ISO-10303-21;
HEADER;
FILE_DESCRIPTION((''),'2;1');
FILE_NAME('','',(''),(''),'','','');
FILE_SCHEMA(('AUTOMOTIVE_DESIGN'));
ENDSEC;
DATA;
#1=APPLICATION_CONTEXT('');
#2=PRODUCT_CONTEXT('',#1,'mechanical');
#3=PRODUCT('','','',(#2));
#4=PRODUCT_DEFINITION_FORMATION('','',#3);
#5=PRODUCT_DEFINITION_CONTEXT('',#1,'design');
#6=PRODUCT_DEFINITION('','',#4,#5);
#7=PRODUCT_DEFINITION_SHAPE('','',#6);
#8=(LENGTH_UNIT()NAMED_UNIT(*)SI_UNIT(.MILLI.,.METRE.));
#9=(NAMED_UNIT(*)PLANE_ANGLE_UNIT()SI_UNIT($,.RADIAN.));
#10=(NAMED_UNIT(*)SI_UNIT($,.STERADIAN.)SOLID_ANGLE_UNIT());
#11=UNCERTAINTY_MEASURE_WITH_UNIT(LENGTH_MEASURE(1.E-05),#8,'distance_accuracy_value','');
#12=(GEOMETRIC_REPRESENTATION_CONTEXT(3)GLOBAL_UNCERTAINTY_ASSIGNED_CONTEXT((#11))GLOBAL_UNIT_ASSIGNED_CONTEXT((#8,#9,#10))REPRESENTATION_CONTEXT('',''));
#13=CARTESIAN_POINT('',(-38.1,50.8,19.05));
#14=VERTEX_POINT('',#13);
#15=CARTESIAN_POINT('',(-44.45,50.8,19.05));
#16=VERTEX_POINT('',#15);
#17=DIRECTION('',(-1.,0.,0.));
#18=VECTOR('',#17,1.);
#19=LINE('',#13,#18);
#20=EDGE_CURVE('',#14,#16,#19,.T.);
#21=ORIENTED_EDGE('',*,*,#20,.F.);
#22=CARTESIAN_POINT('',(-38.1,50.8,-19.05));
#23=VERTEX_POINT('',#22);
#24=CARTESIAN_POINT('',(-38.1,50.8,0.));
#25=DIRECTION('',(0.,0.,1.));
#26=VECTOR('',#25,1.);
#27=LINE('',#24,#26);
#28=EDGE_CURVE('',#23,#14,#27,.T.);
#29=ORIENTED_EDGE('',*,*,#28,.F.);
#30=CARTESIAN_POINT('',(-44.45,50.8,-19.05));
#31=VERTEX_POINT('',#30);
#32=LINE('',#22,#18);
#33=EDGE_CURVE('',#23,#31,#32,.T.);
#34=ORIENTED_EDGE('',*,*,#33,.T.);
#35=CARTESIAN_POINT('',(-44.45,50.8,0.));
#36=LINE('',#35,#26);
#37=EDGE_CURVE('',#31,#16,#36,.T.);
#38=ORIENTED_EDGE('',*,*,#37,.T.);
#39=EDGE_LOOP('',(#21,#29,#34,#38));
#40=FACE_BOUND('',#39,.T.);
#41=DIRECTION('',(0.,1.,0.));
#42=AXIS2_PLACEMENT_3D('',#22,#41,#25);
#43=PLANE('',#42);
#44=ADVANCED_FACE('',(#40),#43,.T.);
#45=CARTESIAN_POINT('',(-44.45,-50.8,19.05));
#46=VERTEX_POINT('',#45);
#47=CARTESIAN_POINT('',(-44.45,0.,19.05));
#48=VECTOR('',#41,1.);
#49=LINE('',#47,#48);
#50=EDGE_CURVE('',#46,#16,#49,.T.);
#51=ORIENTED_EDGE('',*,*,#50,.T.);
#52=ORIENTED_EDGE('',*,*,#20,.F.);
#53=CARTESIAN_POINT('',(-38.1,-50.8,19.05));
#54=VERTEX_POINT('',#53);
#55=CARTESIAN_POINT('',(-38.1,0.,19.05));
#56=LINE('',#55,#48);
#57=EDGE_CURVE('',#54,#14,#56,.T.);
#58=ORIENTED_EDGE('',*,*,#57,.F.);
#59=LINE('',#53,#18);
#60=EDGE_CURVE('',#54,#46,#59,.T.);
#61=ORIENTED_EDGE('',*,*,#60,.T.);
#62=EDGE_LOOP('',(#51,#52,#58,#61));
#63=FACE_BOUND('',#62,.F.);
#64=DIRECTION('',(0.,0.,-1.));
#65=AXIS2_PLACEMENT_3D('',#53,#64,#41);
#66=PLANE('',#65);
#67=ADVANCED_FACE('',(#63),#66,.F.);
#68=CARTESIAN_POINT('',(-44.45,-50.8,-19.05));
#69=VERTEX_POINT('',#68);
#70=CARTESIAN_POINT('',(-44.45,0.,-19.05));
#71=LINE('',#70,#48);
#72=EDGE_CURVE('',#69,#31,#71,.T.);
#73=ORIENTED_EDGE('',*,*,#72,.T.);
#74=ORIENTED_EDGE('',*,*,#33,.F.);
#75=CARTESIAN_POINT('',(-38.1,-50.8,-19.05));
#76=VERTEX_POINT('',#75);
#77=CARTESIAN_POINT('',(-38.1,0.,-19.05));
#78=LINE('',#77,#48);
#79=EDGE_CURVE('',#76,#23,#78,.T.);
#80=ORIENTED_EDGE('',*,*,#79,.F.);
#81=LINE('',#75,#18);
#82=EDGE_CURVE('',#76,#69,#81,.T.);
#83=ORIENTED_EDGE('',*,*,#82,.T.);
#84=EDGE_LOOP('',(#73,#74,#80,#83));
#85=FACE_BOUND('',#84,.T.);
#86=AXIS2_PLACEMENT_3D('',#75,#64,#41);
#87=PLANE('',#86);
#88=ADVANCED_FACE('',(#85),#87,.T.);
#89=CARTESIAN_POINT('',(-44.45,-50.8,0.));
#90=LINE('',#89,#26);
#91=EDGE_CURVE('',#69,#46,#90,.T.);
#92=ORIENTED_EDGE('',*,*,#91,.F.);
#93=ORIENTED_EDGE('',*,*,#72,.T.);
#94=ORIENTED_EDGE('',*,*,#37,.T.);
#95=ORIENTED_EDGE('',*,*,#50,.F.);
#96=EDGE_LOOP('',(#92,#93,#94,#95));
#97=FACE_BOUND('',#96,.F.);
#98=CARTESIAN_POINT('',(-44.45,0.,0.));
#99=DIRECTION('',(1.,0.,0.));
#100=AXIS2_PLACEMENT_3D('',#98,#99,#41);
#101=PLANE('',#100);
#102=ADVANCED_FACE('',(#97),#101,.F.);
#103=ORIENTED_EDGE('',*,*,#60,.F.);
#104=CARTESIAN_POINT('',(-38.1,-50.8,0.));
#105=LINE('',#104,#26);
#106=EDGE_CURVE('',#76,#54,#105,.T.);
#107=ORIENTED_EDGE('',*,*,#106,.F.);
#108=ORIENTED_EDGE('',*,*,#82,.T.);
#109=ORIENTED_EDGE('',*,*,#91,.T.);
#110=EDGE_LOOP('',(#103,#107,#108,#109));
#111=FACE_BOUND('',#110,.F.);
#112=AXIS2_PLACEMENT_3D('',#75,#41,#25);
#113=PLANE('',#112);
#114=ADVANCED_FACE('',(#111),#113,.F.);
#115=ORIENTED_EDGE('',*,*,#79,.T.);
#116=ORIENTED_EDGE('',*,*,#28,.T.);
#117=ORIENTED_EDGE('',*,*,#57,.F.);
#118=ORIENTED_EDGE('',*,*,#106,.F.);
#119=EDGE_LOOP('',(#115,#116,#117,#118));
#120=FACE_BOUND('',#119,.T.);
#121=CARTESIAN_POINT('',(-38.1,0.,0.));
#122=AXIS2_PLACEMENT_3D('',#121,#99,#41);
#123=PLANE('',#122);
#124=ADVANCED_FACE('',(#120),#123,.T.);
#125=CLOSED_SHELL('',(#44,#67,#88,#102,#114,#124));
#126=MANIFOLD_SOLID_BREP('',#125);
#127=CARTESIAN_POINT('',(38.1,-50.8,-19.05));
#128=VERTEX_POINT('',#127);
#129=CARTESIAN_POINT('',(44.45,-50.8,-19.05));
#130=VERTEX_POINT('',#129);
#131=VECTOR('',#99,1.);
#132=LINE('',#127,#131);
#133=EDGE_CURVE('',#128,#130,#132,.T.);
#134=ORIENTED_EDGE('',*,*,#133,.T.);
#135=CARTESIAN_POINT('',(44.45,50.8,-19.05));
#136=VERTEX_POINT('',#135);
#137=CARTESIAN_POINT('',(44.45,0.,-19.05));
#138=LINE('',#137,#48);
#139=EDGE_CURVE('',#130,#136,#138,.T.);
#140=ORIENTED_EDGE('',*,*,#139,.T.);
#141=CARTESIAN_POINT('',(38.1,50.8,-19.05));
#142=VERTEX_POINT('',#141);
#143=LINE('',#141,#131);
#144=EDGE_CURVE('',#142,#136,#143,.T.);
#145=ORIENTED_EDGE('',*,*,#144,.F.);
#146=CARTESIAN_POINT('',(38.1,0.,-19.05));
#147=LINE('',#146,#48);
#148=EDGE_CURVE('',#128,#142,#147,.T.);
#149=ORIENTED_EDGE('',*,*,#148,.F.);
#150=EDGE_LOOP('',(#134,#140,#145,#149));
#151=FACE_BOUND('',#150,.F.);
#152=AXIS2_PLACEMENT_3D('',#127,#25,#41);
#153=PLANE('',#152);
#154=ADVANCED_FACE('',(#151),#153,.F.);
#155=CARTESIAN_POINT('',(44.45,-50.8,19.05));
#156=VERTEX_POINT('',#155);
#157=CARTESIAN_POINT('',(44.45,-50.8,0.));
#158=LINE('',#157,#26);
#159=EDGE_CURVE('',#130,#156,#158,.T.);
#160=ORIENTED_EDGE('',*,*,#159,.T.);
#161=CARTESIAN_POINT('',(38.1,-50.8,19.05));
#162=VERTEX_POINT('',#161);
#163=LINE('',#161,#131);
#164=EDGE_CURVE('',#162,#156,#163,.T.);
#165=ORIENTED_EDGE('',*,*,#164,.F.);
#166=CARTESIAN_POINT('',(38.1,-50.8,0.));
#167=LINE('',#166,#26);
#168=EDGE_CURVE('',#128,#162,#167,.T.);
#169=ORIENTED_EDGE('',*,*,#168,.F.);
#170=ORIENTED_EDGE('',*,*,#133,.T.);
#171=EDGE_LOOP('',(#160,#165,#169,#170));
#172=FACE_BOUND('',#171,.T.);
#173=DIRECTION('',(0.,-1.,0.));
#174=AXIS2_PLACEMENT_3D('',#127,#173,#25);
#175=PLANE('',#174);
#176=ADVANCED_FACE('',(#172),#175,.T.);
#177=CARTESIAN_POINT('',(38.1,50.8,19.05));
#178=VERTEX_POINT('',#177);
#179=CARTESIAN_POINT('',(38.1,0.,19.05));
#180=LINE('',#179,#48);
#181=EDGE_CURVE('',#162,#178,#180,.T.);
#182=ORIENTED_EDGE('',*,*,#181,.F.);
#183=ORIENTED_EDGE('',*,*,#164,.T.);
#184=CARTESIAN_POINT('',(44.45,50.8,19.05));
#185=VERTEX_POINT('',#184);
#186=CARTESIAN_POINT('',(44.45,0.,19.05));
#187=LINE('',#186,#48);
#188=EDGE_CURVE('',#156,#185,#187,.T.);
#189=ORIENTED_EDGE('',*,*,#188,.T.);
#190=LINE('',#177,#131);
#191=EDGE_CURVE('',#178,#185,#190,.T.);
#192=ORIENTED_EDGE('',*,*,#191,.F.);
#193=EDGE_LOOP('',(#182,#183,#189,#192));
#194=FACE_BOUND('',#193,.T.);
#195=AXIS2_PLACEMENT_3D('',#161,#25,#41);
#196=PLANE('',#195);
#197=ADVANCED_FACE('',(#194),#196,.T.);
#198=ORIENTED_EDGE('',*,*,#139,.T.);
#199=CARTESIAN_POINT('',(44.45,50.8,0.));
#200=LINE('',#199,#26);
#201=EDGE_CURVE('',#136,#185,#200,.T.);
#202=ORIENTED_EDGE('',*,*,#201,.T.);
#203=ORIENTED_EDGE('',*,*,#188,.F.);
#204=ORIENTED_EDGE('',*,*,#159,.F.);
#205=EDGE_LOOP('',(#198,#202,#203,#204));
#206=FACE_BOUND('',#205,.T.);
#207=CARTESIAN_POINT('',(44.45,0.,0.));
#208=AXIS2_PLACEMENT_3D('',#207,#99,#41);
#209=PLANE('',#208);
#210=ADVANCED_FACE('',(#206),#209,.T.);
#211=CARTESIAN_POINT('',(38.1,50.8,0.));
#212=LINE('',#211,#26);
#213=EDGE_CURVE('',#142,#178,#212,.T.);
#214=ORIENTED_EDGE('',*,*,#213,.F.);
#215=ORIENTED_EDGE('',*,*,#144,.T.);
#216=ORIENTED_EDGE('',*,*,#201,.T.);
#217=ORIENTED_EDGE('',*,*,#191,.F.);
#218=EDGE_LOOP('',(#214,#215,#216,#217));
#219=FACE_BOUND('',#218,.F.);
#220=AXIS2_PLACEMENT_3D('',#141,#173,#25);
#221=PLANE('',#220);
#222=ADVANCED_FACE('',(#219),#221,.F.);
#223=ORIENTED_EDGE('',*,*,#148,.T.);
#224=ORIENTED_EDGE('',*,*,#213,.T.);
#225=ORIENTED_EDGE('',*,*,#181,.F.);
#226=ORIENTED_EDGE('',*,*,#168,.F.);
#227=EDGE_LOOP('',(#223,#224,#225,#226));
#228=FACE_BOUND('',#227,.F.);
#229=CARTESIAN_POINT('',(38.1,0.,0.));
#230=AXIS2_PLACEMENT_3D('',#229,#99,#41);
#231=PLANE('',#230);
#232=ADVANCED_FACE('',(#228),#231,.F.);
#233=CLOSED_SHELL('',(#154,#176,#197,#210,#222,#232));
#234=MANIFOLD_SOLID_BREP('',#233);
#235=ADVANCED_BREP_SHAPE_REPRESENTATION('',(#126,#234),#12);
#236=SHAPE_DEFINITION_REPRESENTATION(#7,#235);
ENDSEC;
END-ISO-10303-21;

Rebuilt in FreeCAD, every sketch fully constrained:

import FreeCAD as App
import Part
import Sketcher
Q = App.Units.Quantity

doc = App.newDocument("Part")
params = doc.addObject("Spreadsheet::Sheet", "Params")
for row, (alias, value) in enumerate([
    ("sketch1_width", "4 in"),
    ("sketch1_height", "1.5 in"),
    ("pad1_length", "0.25 in"),
    ("sketch2_width", "4 in"),
    ("sketch2_height", "1.5 in"),
    ("pad2_length", "0.25 in"),
], start=1):
    params.set(f"A{row}", alias)
    params.set(f"B{row}", "=" + value)
    params.setAlias(f"B{row}", alias)

body = doc.addObject("PartDesign::Body", "Body")

# Sketch on YZ plane
sketch1 = body.newObject("Sketcher::SketchObject", "Sketch")
sketch1.AttachmentSupport = (doc.getObject("YZ_Plane"), [""])
sketch1.MapMode = "FlatFace"
sketch1.AttachmentOffset = App.Placement(App.Vector(0, 0, 1.5 * 25.4), App.Rotation())
sketch1.addGeometry([
    Part.LineSegment(App.Vector(-51, 19, 0), App.Vector(-51, -19, 0)),
    Part.LineSegment(App.Vector(-51, -19, 0), App.Vector(51, -19, 0)),
    Part.LineSegment(App.Vector(51, -19, 0), App.Vector(51, 19, 0)),
    Part.LineSegment(App.Vector(51, 19, 0), App.Vector(-51, 19, 0)),
], False)
sketch1.addConstraint([
    Sketcher.Constraint("Coincident", 0, 2, 1, 1),
    Sketcher.Constraint("Coincident", 1, 2, 2, 1),
    Sketcher.Constraint("Coincident", 2, 2, 3, 1),
    Sketcher.Constraint("Coincident", 3, 2, 0, 1),
    Sketcher.Constraint("Vertical", 0),
    Sketcher.Constraint("Horizontal", 1),
    Sketcher.Constraint("Vertical", 2),
    Sketcher.Constraint("Horizontal", 3),
    Sketcher.Constraint("Symmetric", 0, 2, 2, 2, -1, 1),
    Sketcher.Constraint("DistanceX", 1, 1, 1, 2, Q("4 in")),
    Sketcher.Constraint("DistanceY", 0, 2, 0, 1, Q("1.5 in")),
])
sketch1.setExpression("Constraints[9]", "Params.sketch1_width")
sketch1.setExpression("Constraints[10]", "Params.sketch1_height")
pad1 = body.newObject("PartDesign::Pad", "Pad")
pad1.Profile = sketch1
pad1.setExpression("Length", "Params.pad1_length")
body2 = doc.addObject("PartDesign::Body", "Body001")

# Sketch on YZ plane
sketch2 = body2.newObject("Sketcher::SketchObject", "Sketch001")
sketch2.AttachmentSupport = (doc.getObject("YZ_Plane001"), [""])
sketch2.MapMode = "FlatFace"
sketch2.AttachmentOffset = App.Placement(App.Vector(0, 0, -1.5 * 25.4), App.Rotation())
sketch2.addGeometry([
    Part.LineSegment(App.Vector(-51, 19, 0), App.Vector(-51, -19, 0)),
    Part.LineSegment(App.Vector(-51, -19, 0), App.Vector(51, -19, 0)),
    Part.LineSegment(App.Vector(51, -19, 0), App.Vector(51, 19, 0)),
    Part.LineSegment(App.Vector(51, 19, 0), App.Vector(-51, 19, 0)),
], False)
sketch2.addConstraint([
    Sketcher.Constraint("Coincident", 0, 2, 1, 1),
    Sketcher.Constraint("Coincident", 1, 2, 2, 1),
    Sketcher.Constraint("Coincident", 2, 2, 3, 1),
    Sketcher.Constraint("Coincident", 3, 2, 0, 1),
    Sketcher.Constraint("Vertical", 0),
    Sketcher.Constraint("Horizontal", 1),
    Sketcher.Constraint("Vertical", 2),
    Sketcher.Constraint("Horizontal", 3),
    Sketcher.Constraint("Symmetric", 0, 2, 2, 2, -1, 1),
    Sketcher.Constraint("DistanceX", 1, 1, 1, 2, Q("4 in")),
    Sketcher.Constraint("DistanceY", 0, 2, 0, 1, Q("1.5 in")),
])
sketch2.setExpression("Constraints[9]", "Params.sketch2_width")
sketch2.setExpression("Constraints[10]", "Params.sketch2_height")
pad2 = body2.newObject("PartDesign::Pad", "Pad001")
pad2.Profile = sketch2
pad2.setExpression("Length", "Params.pad2_length")
pad2.Reversed = True

doc.recompute()
